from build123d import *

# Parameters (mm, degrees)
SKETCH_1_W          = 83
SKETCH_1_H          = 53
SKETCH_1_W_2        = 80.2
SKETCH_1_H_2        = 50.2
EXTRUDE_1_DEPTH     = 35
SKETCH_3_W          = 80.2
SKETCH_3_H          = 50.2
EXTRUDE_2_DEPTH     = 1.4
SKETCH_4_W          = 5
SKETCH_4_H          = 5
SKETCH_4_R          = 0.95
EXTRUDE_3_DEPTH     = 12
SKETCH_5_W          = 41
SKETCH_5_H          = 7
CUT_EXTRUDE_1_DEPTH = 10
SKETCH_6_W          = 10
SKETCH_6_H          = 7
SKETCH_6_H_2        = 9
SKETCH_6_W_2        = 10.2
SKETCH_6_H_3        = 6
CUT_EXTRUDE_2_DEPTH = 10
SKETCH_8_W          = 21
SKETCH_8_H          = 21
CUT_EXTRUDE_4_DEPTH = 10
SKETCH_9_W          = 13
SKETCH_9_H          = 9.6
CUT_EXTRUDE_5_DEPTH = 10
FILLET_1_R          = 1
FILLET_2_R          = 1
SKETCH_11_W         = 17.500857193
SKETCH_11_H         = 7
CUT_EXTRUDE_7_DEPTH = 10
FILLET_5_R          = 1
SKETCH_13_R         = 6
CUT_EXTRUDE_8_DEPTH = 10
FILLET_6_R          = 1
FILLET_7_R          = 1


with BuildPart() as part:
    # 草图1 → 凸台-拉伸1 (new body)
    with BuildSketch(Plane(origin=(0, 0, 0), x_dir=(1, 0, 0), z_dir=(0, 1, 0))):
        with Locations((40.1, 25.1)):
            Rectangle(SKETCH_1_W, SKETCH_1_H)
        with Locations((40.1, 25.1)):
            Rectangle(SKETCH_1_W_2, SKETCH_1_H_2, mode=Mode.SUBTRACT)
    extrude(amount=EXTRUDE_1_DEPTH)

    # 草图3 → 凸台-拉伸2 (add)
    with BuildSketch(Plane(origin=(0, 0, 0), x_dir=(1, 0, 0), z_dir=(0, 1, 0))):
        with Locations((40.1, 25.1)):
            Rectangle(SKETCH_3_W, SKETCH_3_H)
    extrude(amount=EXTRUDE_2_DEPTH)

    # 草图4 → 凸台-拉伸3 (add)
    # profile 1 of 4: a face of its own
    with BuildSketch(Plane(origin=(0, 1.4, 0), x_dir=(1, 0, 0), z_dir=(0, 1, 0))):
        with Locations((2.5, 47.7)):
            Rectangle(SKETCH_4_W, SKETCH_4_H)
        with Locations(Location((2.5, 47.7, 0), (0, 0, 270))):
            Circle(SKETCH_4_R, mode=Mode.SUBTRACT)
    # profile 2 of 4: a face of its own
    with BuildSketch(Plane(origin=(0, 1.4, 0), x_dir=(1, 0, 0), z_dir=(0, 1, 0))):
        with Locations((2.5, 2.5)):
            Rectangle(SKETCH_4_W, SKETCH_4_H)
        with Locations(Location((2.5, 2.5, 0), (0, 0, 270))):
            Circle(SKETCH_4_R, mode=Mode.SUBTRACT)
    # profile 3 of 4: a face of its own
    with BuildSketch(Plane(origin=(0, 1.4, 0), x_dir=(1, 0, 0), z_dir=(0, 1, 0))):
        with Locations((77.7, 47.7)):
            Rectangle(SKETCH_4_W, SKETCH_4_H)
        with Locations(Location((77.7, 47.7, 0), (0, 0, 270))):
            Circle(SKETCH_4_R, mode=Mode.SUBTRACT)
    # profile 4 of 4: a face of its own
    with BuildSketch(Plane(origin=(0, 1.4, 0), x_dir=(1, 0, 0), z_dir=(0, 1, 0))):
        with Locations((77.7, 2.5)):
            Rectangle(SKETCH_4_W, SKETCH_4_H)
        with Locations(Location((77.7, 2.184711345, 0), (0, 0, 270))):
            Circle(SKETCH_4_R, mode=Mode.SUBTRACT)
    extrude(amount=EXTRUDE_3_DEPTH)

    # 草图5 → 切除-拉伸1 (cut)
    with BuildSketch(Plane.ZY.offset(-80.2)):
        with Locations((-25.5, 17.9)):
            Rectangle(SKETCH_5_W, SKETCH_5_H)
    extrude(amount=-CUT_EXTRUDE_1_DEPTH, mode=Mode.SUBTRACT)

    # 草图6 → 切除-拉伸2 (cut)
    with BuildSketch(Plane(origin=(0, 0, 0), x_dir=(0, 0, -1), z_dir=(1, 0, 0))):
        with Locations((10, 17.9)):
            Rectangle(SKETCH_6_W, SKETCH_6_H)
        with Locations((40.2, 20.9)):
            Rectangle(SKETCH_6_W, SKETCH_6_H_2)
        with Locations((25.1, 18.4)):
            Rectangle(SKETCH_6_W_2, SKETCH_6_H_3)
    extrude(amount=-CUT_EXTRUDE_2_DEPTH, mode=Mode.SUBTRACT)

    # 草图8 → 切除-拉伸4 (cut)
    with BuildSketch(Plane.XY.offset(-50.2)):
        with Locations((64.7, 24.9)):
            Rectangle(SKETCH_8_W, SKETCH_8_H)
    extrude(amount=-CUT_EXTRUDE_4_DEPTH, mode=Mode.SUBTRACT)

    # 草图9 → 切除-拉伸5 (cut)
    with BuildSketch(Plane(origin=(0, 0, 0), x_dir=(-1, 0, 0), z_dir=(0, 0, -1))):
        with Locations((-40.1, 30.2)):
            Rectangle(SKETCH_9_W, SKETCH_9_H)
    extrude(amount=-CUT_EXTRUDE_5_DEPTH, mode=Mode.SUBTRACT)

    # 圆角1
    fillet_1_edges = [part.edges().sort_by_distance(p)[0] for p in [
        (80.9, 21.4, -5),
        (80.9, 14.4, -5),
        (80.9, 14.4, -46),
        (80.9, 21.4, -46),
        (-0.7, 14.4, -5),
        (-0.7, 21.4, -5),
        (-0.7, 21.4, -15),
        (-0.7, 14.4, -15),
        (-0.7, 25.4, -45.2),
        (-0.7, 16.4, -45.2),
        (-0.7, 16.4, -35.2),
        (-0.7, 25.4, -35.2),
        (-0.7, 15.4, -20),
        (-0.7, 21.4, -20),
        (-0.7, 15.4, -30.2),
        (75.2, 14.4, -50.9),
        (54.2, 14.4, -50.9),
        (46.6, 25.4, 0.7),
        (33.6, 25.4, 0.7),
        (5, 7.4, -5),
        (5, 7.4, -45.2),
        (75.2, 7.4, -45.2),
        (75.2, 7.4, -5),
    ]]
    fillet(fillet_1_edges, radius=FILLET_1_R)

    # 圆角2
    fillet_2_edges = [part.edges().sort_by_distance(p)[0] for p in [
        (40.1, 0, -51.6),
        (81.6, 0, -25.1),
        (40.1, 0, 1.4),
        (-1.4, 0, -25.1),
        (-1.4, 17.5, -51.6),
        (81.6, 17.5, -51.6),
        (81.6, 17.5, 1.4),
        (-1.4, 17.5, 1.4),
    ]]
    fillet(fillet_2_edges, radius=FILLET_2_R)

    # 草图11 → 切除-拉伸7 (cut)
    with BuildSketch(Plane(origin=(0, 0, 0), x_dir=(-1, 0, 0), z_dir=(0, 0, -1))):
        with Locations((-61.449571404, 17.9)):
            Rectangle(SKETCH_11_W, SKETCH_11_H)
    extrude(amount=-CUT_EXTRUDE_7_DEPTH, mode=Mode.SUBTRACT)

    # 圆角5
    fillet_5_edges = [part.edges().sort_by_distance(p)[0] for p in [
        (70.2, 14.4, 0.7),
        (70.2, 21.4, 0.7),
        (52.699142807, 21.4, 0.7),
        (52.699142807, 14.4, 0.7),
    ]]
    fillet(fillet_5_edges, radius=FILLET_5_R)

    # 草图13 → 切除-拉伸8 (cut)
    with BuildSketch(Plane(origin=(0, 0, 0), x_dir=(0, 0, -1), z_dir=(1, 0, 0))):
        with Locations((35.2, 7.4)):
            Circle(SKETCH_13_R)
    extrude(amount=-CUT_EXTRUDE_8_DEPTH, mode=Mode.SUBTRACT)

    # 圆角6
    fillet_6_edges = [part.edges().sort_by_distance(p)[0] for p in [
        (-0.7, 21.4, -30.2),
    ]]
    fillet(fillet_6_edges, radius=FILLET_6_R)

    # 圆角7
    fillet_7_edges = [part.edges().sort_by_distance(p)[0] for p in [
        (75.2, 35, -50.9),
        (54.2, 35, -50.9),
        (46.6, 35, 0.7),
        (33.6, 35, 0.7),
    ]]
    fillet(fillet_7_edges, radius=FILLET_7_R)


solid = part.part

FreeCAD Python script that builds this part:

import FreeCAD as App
import Part
import Sketcher


def edges_at(feature, points):
    """Names of the edges that pass closest to the given points."""
    edges = feature.Shape.Edges
    near = lambda p: min(range(len(edges)), key=lambda i: edges[i].distToShape(Part.Vertex(*p))[0])
    return sorted({f"Edge{near(p) + 1}" for p in points})

doc = App.newDocument("Part")
body = doc.addObject("PartDesign::Body", "Body")

sketch1 = doc.addObject("Sketcher::SketchObject", "Sketch")
body.addObject(sketch1)
sketch1.AttachmentSupport = (doc.XZ_Plane, [""])
sketch1.MapMode = "FlatFace"
sketch1.addGeometry([
    Part.LineSegment(App.Vector(-1, -52, 0), App.Vector(-1, 1, 0)),
    Part.LineSegment(App.Vector(-1, 1, 0), App.Vector(82, 1, 0)),
    Part.LineSegment(App.Vector(82, 1, 0), App.Vector(82, -52, 0)),
    Part.LineSegment(App.Vector(82, -52, 0), App.Vector(-1, -52, 0)),
    Part.LineSegment(App.Vector(80, 0, 0), App.Vector(0, 0, 0)),
    Part.LineSegment(App.Vector(0, 0, 0), App.Vector(0, -50, 0)),
    Part.LineSegment(App.Vector(0, -50, 0), App.Vector(80, -50, 0)),
    Part.LineSegment(App.Vector(80, -50, 0), App.Vector(80, 0, 0)),
], False)
sketch1.addConstraint([
    Sketcher.Constraint("Coincident", 0, 2, 1, 1),
    Sketcher.Constraint("Coincident", 1, 2, 2, 1),
    Sketcher.Constraint("Coincident", 2, 2, 3, 1),
    Sketcher.Constraint("Coincident", 3, 2, 0, 1),
    Sketcher.Constraint("Coincident", 4, 2, 5, 1),
    Sketcher.Constraint("Coincident", 5, 2, 6, 1),
    Sketcher.Constraint("Coincident", 6, 2, 7, 1),
    Sketcher.Constraint("Coincident", 7, 2, 4, 1),
    Sketcher.Constraint("Vertical", 0),
    Sketcher.Constraint("Horizontal", 1),
    Sketcher.Constraint("Vertical", 2),
    Sketcher.Constraint("Horizontal", 3),
    Sketcher.Constraint("Horizontal", 4),
    Sketcher.Constraint("Vertical", 5),
    Sketcher.Constraint("Horizontal", 6),
    Sketcher.Constraint("Vertical", 7),
    Sketcher.Constraint("Coincident", 4, 2, -1, 1),
    Sketcher.Constraint("DistanceX", 1, 1, 1, 2, 83.0),
    Sketcher.Constraint("DistanceY", 0, 1, 0, 2, 53.0),
    Sketcher.Constraint("DistanceX", 4, 2, 4, 1, 80.2),
    Sketcher.Constraint("DistanceY", 5, 2, 5, 1, 50.2),
    Sketcher.Constraint("DistanceX", 0, 2, -1, 1, 1.4),
    Sketcher.Constraint("DistanceY", -1, 1, 0, 2, 1.4),
])
pad1 = doc.addObject("PartDesign::Pad", "Pad")
body.addObject(pad1)
pad1.Profile = sketch1
pad1.Length = 35
pad1.Reversed = True

sketch2 = doc.addObject("Sketcher::SketchObject", "Sketch001")
body.addObject(sketch2)
sketch2.AttachmentSupport = (doc.XZ_Plane, [""])
sketch2.MapMode = "FlatFace"
sketch2.addGeometry([
    Part.LineSegment(App.Vector(0, -50, 0), App.Vector(0, 0, 0)),
    Part.LineSegment(App.Vector(0, 0, 0), App.Vector(80, 0, 0)),
    Part.LineSegment(App.Vector(80, 0, 0), App.Vector(80, -50, 0)),
    Part.LineSegment(App.Vector(80, -50, 0), App.Vector(0, -50, 0)),
], False)
sketch2.addConstraint([
    Sketcher.Constraint("Coincident", 0, 2, 1, 1),
    Sketcher.Constraint("Coincident", 1, 2, 2, 1),
    Sketcher.Constraint("Coincident", 2, 2, 3, 1),
    Sketcher.Constraint("Coincident", 3, 2, 0, 1),
    Sketcher.Constraint("Vertical", 0),
    Sketcher.Constraint("Horizontal", 1),
    Sketcher.Constraint("Vertical", 2),
    Sketcher.Constraint("Horizontal", 3),
    Sketcher.Constraint("Coincident", 0, 2, -1, 1),
    Sketcher.Constraint("DistanceX", 1, 1, 1, 2, 80.2),
    Sketcher.Constraint("DistanceY", 0, 1, 0, 2, 50.2),
])
pad2 = doc.addObject("PartDesign::Pad", "Pad001")
body.addObject(pad2)
pad2.Profile = sketch2
pad2.Length = 1.4
pad2.Reversed = True

sketch3 = doc.addObject("Sketcher::SketchObject", "Sketch002")
body.addObject(sketch3)
sketch3.AttachmentSupport = (doc.XZ_Plane, [""])
sketch3.MapMode = "FlatFace"
sketch3.AttachmentOffset = App.Placement(App.Vector(0, 0, -1.4), App.Rotation())
sketch3.addGeometry([
    Part.LineSegment(App.Vector(0, -50.2, 0), App.Vector(0, -45.2, 0)),
    Part.LineSegment(App.Vector(0, -45.2, 0), App.Vector(5, -45.2, 0)),
    Part.LineSegment(App.Vector(5, -45.2, 0), App.Vector(5, -50.2, 0)),
    Part.LineSegment(App.Vector(5, -50.2, 0), App.Vector(0, -50.2, 0)),
    Part.Circle(App.Vector(2.5, -47.7, 0), App.Vector(0, 0, 1), 0.9),
    Part.LineSegment(App.Vector(0, -5, 0), App.Vector(0, 0, 0)),
    Part.LineSegment(App.Vector(0, 0, 0), App.Vector(5, 0, 0)),
    Part.LineSegment(App.Vector(5, 0, 0), App.Vector(5, -5, 0)),
    Part.LineSegment(App.Vector(5, -5, 0), App.Vector(0, -5, 0)),
    Part.Circle(App.Vector(2.5, -2.5, 0), App.Vector(0, 0, 1), 0.9),
    Part.LineSegment(App.Vector(75.2, -50.2, 0), App.Vector(75.2, -45.2, 0)),
    Part.LineSegment(App.Vector(75.2, -45.2, 0), App.Vector(80.2, -45.2, 0)),
    Part.LineSegment(App.Vector(80.2, -45.2, 0), App.Vector(80.2, -50.2, 0)),
    Part.LineSegment(App.Vector(80.2, -50.2, 0), App.Vector(75.2, -50.2, 0)),
    Part.Circle(App.Vector(77.7, -47.7, 0), App.Vector(0, 0, 1), 0.9),
    Part.LineSegment(App.Vector(75.2, -5, 0), App.Vector(75.2, 0, 0)),
    Part.LineSegment(App.Vector(75.2, 0, 0), App.Vector(80.2, 0, 0)),
    Part.LineSegment(App.Vector(80.2, 0, 0), App.Vector(80.2, -5, 0)),
    Part.LineSegment(App.Vector(80.2, -5, 0), App.Vector(75.2, -5, 0)),
    Part.Circle(App.Vector(77.7, -2.2, 0), App.Vector(0, 0, 1), 0.9),
], False)
sketch3.addConstraint([
    Sketcher.Constraint("Coincident", 0, 2, 1, 1),
    Sketcher.Constraint("Coincident", 1, 2, 2, 1),
    Sketcher.Constraint("Coincident", 2, 2, 3, 1),
    Sketcher.Constraint("Coincident", 3, 2, 0, 1),
    Sketcher.Constraint("Coincident", 5, 2, 6, 1),
    Sketcher.Constraint("Coincident", 6, 2, 7, 1),
    Sketcher.Constraint("Coincident", 7, 2, 8, 1),
    Sketcher.Constraint("Coincident", 8, 2, 5, 1),
    Sketcher.Constraint("Coincident", 10, 2, 11, 1),
    Sketcher.Constraint("Coincident", 11, 2, 12, 1),
    Sketcher.Constraint("Coincident", 12, 2, 13, 1),
    Sketcher.Constraint("Coincident", 13, 2, 10, 1),
    Sketcher.Constraint("Coincident", 15, 2, 16, 1),
    Sketcher.Constraint("Coincident", 16, 2, 17, 1),
    Sketcher.Constraint("Coincident", 17, 2, 18, 1),
    Sketcher.Constraint("Coincident", 18, 2, 15, 1),
    Sketcher.Constraint("Vertical", 0),
    Sketcher.Constraint("Horizontal", 1),
    Sketcher.Constraint("Vertical", 2),
    Sketcher.Constraint("Horizontal", 3),
    Sketcher.Constraint("Vertical", 5),
    Sketcher.Constraint("Horizontal", 6),
    Sketcher.Constraint("Vertical", 7),
    Sketcher.Constraint("Horizontal", 8),
    Sketcher.Constraint("Vertical", 10),
    Sketcher.Constraint("Horizontal", 11),
    Sketcher.Constraint("Vertical", 12),
    Sketcher.Constraint("Horizontal", 13),
    Sketcher.Constraint("Vertical", 15),
    Sketcher.Constraint("Horizontal", 16),
    Sketcher.Constraint("Vertical", 17),
    Sketcher.Constraint("Horizontal", 18),
    Sketcher.Constraint("Coincident", 5, 2, -1, 1),
    Sketcher.Constraint("Equal", 4, 9),
    Sketcher.Constraint("Equal", 9, 14),
    Sketcher.Constraint("Equal", 14, 19),
    Sketcher.Constraint("PointOnObject", 0, 2, -2),
    Sketcher.Constraint("PointOnObject", 15, 2, -1),
    Sketcher.Constraint("Horizontal", 4, 3, 14, 3),
    Sketcher.Constraint("Horizontal", 1, 2, 10, 2),
    Sketcher.Constraint("Horizontal", 3, 2, 12, 2),
    Sketcher.Constraint("Horizontal", 8, 2, 17, 2),
    Sketcher.Constraint("Vertical", 4, 3, 9, 3),
    Sketcher.Constraint("Vertical", 14, 3, 19, 3),
    Sketcher.Constraint("Vertical", 2, 2, 6, 2),
    Sketcher.Constraint("Vertical", 13, 2, 15, 2),
    Sketcher.Constraint("Vertical", 12, 2, 16, 2),
    Sketcher.Constraint("Equal", 8, 11),
    Sketcher.Constraint("Equal", 18, 0),
    Sketcher.Constraint("Equal", 2, 5),
    Sketcher.Constraint("Diameter", 4, 1.9),
    Sketcher.Constraint("DistanceX", 1, 1, 1, 2, 5.0),
    Sketcher.Constraint("DistanceX", -1, 1, 4, 3, 2.5),
    Sketcher.Constraint("DistanceY", 4, 3, -1, 1, 47.7),
    Sketcher.Constraint("DistanceY", 9, 3, -1, 1, 2.5),
    Sketcher.Constraint("DistanceX", -1, 1, 14, 3, 77.7),
    Sketcher.Constraint("DistanceY", 0, 2, -1, 1, 45.2),
    Sketcher.Constraint("DistanceX", -1, 1, 10, 2, 75.2),
    Sketcher.Constraint("DistanceY", 19, 3, -1, 1, 2.184711),
])
pad3 = doc.addObject("PartDesign::Pad", "Pad002")
body.addObject(pad3)
pad3.Profile = sketch3
pad3.Length = 12
pad3.Reversed = True

sketch4 = doc.addObject("Sketcher::SketchObject", "Sketch003")
body.addObject(sketch4)
sketch4.AttachmentSupport = (doc.YZ_Plane, [""])
sketch4.MapMode = "FlatFace"
sketch4.AttachmentOffset = App.Placement(App.Vector(0, 0, 80.2), App.Rotation())
sketch4.addGeometry([
    Part.LineSegment(App.Vector(21, -46, 0), App.Vector(14, -46, 0)),
    Part.LineSegment(App.Vector(14, -46, 0), App.Vector(14, -5, 0)),
    Part.LineSegment(App.Vector(14, -5, 0), App.Vector(21, -5, 0)),
    Part.LineSegment(App.Vector(21, -5, 0), App.Vector(21, -46, 0)),
], False)
sketch4.addConstraint([
    Sketcher.Constraint("Coincident", 0, 2, 1, 1),
    Sketcher.Constraint("Coincident", 1, 2, 2, 1),
    Sketcher.Constraint("Coincident", 2, 2, 3, 1),
    Sketcher.Constraint("Coincident", 3, 2, 0, 1),
    Sketcher.Constraint("Horizontal", 0),
    Sketcher.Constraint("Vertical", 1),
    Sketcher.Constraint("Horizontal", 2),
    Sketcher.Constraint("Vertical", 3),
    Sketcher.Constraint("DistanceX", 0, 2, 0, 1, 7.0),
    Sketcher.Constraint("DistanceY", 1, 1, 1, 2, 41.0),
    Sketcher.Constraint("DistanceY", 0, 2, -1, 1, 46.0),
    Sketcher.Constraint("DistanceX", -1, 1, 0, 2, 14.4),
])
pocket1 = doc.addObject("PartDesign::Pocket", "Pocket")
body.addObject(pocket1)
pocket1.Profile = sketch4
pocket1.Length = 10
pocket1.Reversed = True

sketch5 = doc.addObject("Sketcher::SketchObject", "Sketch004")
body.addObject(sketch5)
sketch5.AttachmentSupport = (doc.YZ_Plane, [""])
sketch5.MapMode = "FlatFace"
sketch5.addGeometry([
    Part.LineSegment(App.Vector(21, -5, 0), App.Vector(14, -5, 0)),
    Part.LineSegment(App.Vector(14, -5, 0), App.Vector(14, -15, 0)),
    Part.LineSegment(App.Vector(14, -15, 0), App.Vector(21, -15, 0)),
    Part.LineSegment(App.Vector(21, -15, 0), App.Vector(21, -5, 0)),
    Part.LineSegment(App.Vector(25, -35, 0), App.Vector(16, -35, 0)),
    Part.LineSegment(App.Vector(16, -35, 0), App.Vector(16, -45, 0)),
    Part.LineSegment(App.Vector(16, -45, 0), App.Vector(25, -45, 0)),
    Part.LineSegment(App.Vector(25, -45, 0), App.Vector(25, -35, 0)),
    Part.LineSegment(App.Vector(21, -20, 0), App.Vector(15, -20, 0)),
    Part.LineSegment(App.Vector(15, -20, 0), App.Vector(15, -30, 0)),
    Part.LineSegment(App.Vector(15, -30, 0), App.Vector(21, -30, 0)),
    Part.LineSegment(App.Vector(21, -30, 0), App.Vector(21, -20, 0)),
], False)
sketch5.addConstraint([
    Sketcher.Constraint("Coincident", 0, 2, 1, 1),
    Sketcher.Constraint("Coincident", 1, 2, 2, 1),
    Sketcher.Constraint("Coincident", 2, 2, 3, 1),
    Sketcher.Constraint("Coincident", 3, 2, 0, 1),
    Sketcher.Constraint("Coincident", 4, 2, 5, 1),
    Sketcher.Constraint("Coincident", 5, 2, 6, 1),
    Sketcher.Constraint("Coincident", 6, 2, 7, 1),
    Sketcher.Constraint("Coincident", 7, 2, 4, 1),
    Sketcher.Constraint("Coincident", 8, 2, 9, 1),
    Sketcher.Constraint("Coincident", 9, 2, 10, 1),
    Sketcher.Constraint("Coincident", 10, 2, 11, 1),
    Sketcher.Constraint("Coincident", 11, 2, 8, 1),
    Sketcher.Constraint("Horizontal", 0),
    Sketcher.Constraint("Vertical", 1),
    Sketcher.Constraint("Horizontal", 2),
    Sketcher.Constraint("Vertical", 3),
    Sketcher.Constraint("Horizontal", 4),
    Sketcher.Constraint("Vertical", 5),
    Sketcher.Constraint("Horizontal", 6),
    Sketcher.Constraint("Vertical", 7),
    Sketcher.Constraint("Horizontal", 8),
    Sketcher.Constraint("Vertical", 9),
    Sketcher.Constraint("Horizontal", 10),
    Sketcher.Constraint("Vertical", 11),
    Sketcher.Constraint("Vertical", 3, 2, 10, 2),
    Sketcher.Constraint("Equal", 3, 5),
    Sketcher.Constraint("DistanceX", 0, 2, 0, 1, 7.0),
    Sketcher.Constraint("DistanceX", 4, 2, 4, 1, 9.0),
    Sketcher.Constraint("DistanceX", 8, 2, 8, 1, 6.0),
    Sketcher.Constraint("DistanceY", 1, 2, 1, 1, 10.0),
    Sketcher.Constraint("DistanceY", 9, 2, 9, 1, 10.2),
    Sketcher.Constraint("DistanceY", 0, 2, -1, 1, 5.0),
    Sketcher.Constraint("DistanceY", 8, 2, -1, 1, 20.0),
    Sketcher.Constraint("DistanceX", 1, 2, 4, 2, 2.0),
    Sketcher.Constraint("DistanceY", 4, 2, 9, 2, 5.0),
    Sketcher.Constraint("DistanceX", -1, 1, 0, 2, 14.4),
])
pocket2 = doc.addObject("PartDesign::Pocket", "Pocket001")
body.addObject(pocket2)
pocket2.Profile = sketch5
pocket2.Length = 10

sketch6 = doc.addObject("Sketcher::SketchObject", "Sketch005")
body.addObject(sketch6)
sketch6.AttachmentSupport = (doc.XY_Plane, [""])
sketch6.MapMode = "FlatFace"
sketch6.AttachmentOffset = App.Placement(App.Vector(0, 0, -50.2), App.Rotation())
sketch6.addGeometry([
    Part.LineSegment(App.Vector(54, 35, 0), App.Vector(54, 14, 0)),
    Part.LineSegment(App.Vector(54, 14, 0), App.Vector(75, 14, 0)),
    Part.LineSegment(App.Vector(75, 14, 0), App.Vector(75, 35, 0)),
    Part.LineSegment(App.Vector(75, 35, 0), App.Vector(54, 35, 0)),
], False)
sketch6.addConstraint([
    Sketcher.Constraint("Coincident", 0, 2, 1, 1),
    Sketcher.Constraint("Coincident", 1, 2, 2, 1),
    Sketcher.Constraint("Coincident", 2, 2, 3, 1),
    Sketcher.Constraint("Coincident", 3, 2, 0, 1),
    Sketcher.Constraint("Vertical", 0),
    Sketcher.Constraint("Horizontal", 1),
    Sketcher.Constraint("Vertical", 2),
    Sketcher.Constraint("Horizontal", 3),
    Sketcher.Constraint("Equal", 3, 0),
    Sketcher.Constraint("DistanceX", 1, 1, 1, 2, 21.0),
    Sketcher.Constraint("DistanceX", -1, 1, 0, 2, 54.2),
    Sketcher.Constraint("DistanceY", -1, 1, 0, 2, 14.4),
])
pocket3 = doc.addObject("PartDesign::Pocket", "Pocket002")
body.addObject(pocket3)
pocket3.Profile = sketch6
pocket3.Length = 10

sketch7 = doc.addObject("Sketcher::SketchObject", "Sketch006")
body.addObject(sketch7)
sketch7.AttachmentSupport = (doc.XY_Plane, [""])
sketch7.MapMode = "FlatFace"
sketch7.addGeometry([
    Part.LineSegment(App.Vector(47, 35, 0), App.Vector(47, 25, 0)),
    Part.LineSegment(App.Vector(47, 25, 0), App.Vector(34, 25, 0)),
    Part.LineSegment(App.Vector(34, 25, 0), App.Vector(34, 35, 0)),
    Part.LineSegment(App.Vector(34, 35, 0), App.Vector(47, 35, 0)),
], False)
sketch7.addConstraint([
    Sketcher.Constraint("Coincident", 0, 2, 1, 1),
    Sketcher.Constraint("Coincident", 1, 2, 2, 1),
    Sketcher.Constraint("Coincident", 2, 2, 3, 1),
    Sketcher.Constraint("Coincident", 3, 2, 0, 1),
    Sketcher.Constraint("Vertical", 0),
    Sketcher.Constraint("Horizontal", 1),
    Sketcher.Constraint("Vertical", 2),
    Sketcher.Constraint("Horizontal", 3),
    Sketcher.Constraint("DistanceX", 1, 2, 1, 1, 13.0),
    Sketcher.Constraint("DistanceY", 0, 2, 0, 1, 9.6),
    Sketcher.Constraint("DistanceY", -1, 1, 2, 2, 35.0),
    Sketcher.Constraint("DistanceX", -1, 1, 0, 2, 46.6),
])
pocket4 = doc.addObject("PartDesign::Pocket", "Pocket003")
body.addObject(pocket4)
pocket4.Profile = sketch7
pocket4.Length = 10
pocket4.Reversed = True
doc.recompute()

fillet = doc.addObject("PartDesign::Fillet", "Fillet")
body.addObject(fillet)
fillet.Base = (pocket4, edges_at(pocket4, [
    (80.9, 21.4, -5),
    (80.9, 14.4, -5),
    (80.9, 14.4, -46),
    (80.9, 21.4, -46),
    (-0.7, 14.4, -5),
    (-0.7, 21.4, -5),
    (-0.7, 21.4, -15),
    (-0.7, 14.4, -15),
    (-0.7, 25.4, -45.2),
    (-0.7, 16.4, -45.2),
    (-0.7, 16.4, -35.2),
    (-0.7, 25.4, -35.2),
    (-0.7, 15.4, -20),
    (-0.7, 21.4, -20),
    (-0.7, 15.4, -30.2),
    (75.2, 14.4, -50.9),
    (54.2, 14.4, -50.9),
    (46.6, 25.4, 0.7),
    (33.6, 25.4, 0.7),
    (5, 7.4, -5),
    (5, 7.4, -45.2),
    (75.2, 7.4, -45.2),
    (75.2, 7.4, -5),
]))
fillet.Radius = 1
doc.recompute()

fillet2 = doc.addObject("PartDesign::Fillet", "Fillet001")
body.addObject(fillet2)
fillet2.Base = (fillet, edges_at(fillet, [
    (40.1, 0, -51.6),
    (81.6, 0, -25.1),
    (40.1, 0, 1.4),
    (-1.4, 0, -25.1),
    (-1.4, 17.5, -51.6),
    (81.6, 17.5, -51.6),
    (81.6, 17.5, 1.4),
    (-1.4, 17.5, 1.4),
]))
fillet2.Radius = 1

sketch8 = doc.addObject("Sketcher::SketchObject", "Sketch007")
body.addObject(sketch8)
sketch8.AttachmentSupport = (doc.XY_Plane, [""])
sketch8.MapMode = "FlatFace"
sketch8.addGeometry([
    Part.LineSegment(App.Vector(70, 21, 0), App.Vector(70, 14, 0)),
    Part.LineSegment(App.Vector(70, 14, 0), App.Vector(53, 14, 0)),
    Part.LineSegment(App.Vector(53, 14, 0), App.Vector(53, 21, 0)),
    Part.LineSegment(App.Vector(53, 21, 0), App.Vector(70, 21, 0)),
], False)
sketch8.addConstraint([
    Sketcher.Constraint("Coincident", 0, 2, 1, 1),
    Sketcher.Constraint("Coincident", 1, 2, 2, 1),
    Sketcher.Constraint("Coincident", 2, 2, 3, 1),
    Sketcher.Constraint("Coincident", 3, 2, 0, 1),
    Sketcher.Constraint("Vertical", 0),
    Sketcher.Constraint("Horizontal", 1),
    Sketcher.Constraint("Vertical", 2),
    Sketcher.Constraint("Horizontal", 3),
    Sketcher.Constraint("DistanceY", 0, 2, 0, 1, 7.0),
    Sketcher.Constraint("DistanceX", -1, 1, 0, 2, 70.2),
    Sketcher.Constraint("DistanceY", -1, 1, 0, 2, 14.4),
    Sketcher.Constraint("DistanceX", 1, 2, 1, 1, 17.500857),
])
pocket5 = doc.addObject("PartDesign::Pocket", "Pocket004")
body.addObject(pocket5)
pocket5.Profile = sketch8
pocket5.Length = 10
pocket5.Reversed = True
doc.recompute()

fillet3 = doc.addObject("PartDesign::Fillet", "Fillet002")
body.addObject(fillet3)
fillet3.Base = (pocket5, edges_at(pocket5, [
    (70.2, 14.4, 0.7),
    (70.2, 21.4, 0.7),
    (52.699, 21.4, 0.7),
    (52.699, 14.4, 0.7),
]))
fillet3.Radius = 1

sketch9 = doc.addObject("Sketcher::SketchObject", "Sketch008")
body.addObject(sketch9)
sketch9.AttachmentSupport = (doc.YZ_Plane, [""])
sketch9.MapMode = "FlatFace"
sketch9.addGeometry(Part.Circle(App.Vector(7, -35, 0), App.Vector(0, 0, 1), 6), False)
sketch9.addConstraint([
    Sketcher.Constraint("Diameter", 0, 12.0),
    Sketcher.Constraint("DistanceX", -1, 1, 0, 3, 7.4),
    Sketcher.Constraint("DistanceY", 0, 3, -1, 1, 35.2),
])
pocket6 = doc.addObject("PartDesign::Pocket", "Pocket005")
body.addObject(pocket6)
pocket6.Profile = sketch9
pocket6.Length = 10
doc.recompute()

fillet4 = doc.addObject("PartDesign::Fillet", "Fillet003")
body.addObject(fillet4)
fillet4.Base = (pocket6, edges_at(pocket6, [(-0.7, 21.4, -30.2)]))
fillet4.Radius = 1
doc.recompute()

fillet5 = doc.addObject("PartDesign::Fillet", "Fillet004")
body.addObject(fillet5)
fillet5.Base = (fillet4, edges_at(fillet4, [
    (75.2, 35, -50.9),
    (54.2, 35, -50.9),
    (46.6, 35, 0.7),
    (33.6, 35, 0.7),
]))
fillet5.Radius = 1

doc.recompute()
